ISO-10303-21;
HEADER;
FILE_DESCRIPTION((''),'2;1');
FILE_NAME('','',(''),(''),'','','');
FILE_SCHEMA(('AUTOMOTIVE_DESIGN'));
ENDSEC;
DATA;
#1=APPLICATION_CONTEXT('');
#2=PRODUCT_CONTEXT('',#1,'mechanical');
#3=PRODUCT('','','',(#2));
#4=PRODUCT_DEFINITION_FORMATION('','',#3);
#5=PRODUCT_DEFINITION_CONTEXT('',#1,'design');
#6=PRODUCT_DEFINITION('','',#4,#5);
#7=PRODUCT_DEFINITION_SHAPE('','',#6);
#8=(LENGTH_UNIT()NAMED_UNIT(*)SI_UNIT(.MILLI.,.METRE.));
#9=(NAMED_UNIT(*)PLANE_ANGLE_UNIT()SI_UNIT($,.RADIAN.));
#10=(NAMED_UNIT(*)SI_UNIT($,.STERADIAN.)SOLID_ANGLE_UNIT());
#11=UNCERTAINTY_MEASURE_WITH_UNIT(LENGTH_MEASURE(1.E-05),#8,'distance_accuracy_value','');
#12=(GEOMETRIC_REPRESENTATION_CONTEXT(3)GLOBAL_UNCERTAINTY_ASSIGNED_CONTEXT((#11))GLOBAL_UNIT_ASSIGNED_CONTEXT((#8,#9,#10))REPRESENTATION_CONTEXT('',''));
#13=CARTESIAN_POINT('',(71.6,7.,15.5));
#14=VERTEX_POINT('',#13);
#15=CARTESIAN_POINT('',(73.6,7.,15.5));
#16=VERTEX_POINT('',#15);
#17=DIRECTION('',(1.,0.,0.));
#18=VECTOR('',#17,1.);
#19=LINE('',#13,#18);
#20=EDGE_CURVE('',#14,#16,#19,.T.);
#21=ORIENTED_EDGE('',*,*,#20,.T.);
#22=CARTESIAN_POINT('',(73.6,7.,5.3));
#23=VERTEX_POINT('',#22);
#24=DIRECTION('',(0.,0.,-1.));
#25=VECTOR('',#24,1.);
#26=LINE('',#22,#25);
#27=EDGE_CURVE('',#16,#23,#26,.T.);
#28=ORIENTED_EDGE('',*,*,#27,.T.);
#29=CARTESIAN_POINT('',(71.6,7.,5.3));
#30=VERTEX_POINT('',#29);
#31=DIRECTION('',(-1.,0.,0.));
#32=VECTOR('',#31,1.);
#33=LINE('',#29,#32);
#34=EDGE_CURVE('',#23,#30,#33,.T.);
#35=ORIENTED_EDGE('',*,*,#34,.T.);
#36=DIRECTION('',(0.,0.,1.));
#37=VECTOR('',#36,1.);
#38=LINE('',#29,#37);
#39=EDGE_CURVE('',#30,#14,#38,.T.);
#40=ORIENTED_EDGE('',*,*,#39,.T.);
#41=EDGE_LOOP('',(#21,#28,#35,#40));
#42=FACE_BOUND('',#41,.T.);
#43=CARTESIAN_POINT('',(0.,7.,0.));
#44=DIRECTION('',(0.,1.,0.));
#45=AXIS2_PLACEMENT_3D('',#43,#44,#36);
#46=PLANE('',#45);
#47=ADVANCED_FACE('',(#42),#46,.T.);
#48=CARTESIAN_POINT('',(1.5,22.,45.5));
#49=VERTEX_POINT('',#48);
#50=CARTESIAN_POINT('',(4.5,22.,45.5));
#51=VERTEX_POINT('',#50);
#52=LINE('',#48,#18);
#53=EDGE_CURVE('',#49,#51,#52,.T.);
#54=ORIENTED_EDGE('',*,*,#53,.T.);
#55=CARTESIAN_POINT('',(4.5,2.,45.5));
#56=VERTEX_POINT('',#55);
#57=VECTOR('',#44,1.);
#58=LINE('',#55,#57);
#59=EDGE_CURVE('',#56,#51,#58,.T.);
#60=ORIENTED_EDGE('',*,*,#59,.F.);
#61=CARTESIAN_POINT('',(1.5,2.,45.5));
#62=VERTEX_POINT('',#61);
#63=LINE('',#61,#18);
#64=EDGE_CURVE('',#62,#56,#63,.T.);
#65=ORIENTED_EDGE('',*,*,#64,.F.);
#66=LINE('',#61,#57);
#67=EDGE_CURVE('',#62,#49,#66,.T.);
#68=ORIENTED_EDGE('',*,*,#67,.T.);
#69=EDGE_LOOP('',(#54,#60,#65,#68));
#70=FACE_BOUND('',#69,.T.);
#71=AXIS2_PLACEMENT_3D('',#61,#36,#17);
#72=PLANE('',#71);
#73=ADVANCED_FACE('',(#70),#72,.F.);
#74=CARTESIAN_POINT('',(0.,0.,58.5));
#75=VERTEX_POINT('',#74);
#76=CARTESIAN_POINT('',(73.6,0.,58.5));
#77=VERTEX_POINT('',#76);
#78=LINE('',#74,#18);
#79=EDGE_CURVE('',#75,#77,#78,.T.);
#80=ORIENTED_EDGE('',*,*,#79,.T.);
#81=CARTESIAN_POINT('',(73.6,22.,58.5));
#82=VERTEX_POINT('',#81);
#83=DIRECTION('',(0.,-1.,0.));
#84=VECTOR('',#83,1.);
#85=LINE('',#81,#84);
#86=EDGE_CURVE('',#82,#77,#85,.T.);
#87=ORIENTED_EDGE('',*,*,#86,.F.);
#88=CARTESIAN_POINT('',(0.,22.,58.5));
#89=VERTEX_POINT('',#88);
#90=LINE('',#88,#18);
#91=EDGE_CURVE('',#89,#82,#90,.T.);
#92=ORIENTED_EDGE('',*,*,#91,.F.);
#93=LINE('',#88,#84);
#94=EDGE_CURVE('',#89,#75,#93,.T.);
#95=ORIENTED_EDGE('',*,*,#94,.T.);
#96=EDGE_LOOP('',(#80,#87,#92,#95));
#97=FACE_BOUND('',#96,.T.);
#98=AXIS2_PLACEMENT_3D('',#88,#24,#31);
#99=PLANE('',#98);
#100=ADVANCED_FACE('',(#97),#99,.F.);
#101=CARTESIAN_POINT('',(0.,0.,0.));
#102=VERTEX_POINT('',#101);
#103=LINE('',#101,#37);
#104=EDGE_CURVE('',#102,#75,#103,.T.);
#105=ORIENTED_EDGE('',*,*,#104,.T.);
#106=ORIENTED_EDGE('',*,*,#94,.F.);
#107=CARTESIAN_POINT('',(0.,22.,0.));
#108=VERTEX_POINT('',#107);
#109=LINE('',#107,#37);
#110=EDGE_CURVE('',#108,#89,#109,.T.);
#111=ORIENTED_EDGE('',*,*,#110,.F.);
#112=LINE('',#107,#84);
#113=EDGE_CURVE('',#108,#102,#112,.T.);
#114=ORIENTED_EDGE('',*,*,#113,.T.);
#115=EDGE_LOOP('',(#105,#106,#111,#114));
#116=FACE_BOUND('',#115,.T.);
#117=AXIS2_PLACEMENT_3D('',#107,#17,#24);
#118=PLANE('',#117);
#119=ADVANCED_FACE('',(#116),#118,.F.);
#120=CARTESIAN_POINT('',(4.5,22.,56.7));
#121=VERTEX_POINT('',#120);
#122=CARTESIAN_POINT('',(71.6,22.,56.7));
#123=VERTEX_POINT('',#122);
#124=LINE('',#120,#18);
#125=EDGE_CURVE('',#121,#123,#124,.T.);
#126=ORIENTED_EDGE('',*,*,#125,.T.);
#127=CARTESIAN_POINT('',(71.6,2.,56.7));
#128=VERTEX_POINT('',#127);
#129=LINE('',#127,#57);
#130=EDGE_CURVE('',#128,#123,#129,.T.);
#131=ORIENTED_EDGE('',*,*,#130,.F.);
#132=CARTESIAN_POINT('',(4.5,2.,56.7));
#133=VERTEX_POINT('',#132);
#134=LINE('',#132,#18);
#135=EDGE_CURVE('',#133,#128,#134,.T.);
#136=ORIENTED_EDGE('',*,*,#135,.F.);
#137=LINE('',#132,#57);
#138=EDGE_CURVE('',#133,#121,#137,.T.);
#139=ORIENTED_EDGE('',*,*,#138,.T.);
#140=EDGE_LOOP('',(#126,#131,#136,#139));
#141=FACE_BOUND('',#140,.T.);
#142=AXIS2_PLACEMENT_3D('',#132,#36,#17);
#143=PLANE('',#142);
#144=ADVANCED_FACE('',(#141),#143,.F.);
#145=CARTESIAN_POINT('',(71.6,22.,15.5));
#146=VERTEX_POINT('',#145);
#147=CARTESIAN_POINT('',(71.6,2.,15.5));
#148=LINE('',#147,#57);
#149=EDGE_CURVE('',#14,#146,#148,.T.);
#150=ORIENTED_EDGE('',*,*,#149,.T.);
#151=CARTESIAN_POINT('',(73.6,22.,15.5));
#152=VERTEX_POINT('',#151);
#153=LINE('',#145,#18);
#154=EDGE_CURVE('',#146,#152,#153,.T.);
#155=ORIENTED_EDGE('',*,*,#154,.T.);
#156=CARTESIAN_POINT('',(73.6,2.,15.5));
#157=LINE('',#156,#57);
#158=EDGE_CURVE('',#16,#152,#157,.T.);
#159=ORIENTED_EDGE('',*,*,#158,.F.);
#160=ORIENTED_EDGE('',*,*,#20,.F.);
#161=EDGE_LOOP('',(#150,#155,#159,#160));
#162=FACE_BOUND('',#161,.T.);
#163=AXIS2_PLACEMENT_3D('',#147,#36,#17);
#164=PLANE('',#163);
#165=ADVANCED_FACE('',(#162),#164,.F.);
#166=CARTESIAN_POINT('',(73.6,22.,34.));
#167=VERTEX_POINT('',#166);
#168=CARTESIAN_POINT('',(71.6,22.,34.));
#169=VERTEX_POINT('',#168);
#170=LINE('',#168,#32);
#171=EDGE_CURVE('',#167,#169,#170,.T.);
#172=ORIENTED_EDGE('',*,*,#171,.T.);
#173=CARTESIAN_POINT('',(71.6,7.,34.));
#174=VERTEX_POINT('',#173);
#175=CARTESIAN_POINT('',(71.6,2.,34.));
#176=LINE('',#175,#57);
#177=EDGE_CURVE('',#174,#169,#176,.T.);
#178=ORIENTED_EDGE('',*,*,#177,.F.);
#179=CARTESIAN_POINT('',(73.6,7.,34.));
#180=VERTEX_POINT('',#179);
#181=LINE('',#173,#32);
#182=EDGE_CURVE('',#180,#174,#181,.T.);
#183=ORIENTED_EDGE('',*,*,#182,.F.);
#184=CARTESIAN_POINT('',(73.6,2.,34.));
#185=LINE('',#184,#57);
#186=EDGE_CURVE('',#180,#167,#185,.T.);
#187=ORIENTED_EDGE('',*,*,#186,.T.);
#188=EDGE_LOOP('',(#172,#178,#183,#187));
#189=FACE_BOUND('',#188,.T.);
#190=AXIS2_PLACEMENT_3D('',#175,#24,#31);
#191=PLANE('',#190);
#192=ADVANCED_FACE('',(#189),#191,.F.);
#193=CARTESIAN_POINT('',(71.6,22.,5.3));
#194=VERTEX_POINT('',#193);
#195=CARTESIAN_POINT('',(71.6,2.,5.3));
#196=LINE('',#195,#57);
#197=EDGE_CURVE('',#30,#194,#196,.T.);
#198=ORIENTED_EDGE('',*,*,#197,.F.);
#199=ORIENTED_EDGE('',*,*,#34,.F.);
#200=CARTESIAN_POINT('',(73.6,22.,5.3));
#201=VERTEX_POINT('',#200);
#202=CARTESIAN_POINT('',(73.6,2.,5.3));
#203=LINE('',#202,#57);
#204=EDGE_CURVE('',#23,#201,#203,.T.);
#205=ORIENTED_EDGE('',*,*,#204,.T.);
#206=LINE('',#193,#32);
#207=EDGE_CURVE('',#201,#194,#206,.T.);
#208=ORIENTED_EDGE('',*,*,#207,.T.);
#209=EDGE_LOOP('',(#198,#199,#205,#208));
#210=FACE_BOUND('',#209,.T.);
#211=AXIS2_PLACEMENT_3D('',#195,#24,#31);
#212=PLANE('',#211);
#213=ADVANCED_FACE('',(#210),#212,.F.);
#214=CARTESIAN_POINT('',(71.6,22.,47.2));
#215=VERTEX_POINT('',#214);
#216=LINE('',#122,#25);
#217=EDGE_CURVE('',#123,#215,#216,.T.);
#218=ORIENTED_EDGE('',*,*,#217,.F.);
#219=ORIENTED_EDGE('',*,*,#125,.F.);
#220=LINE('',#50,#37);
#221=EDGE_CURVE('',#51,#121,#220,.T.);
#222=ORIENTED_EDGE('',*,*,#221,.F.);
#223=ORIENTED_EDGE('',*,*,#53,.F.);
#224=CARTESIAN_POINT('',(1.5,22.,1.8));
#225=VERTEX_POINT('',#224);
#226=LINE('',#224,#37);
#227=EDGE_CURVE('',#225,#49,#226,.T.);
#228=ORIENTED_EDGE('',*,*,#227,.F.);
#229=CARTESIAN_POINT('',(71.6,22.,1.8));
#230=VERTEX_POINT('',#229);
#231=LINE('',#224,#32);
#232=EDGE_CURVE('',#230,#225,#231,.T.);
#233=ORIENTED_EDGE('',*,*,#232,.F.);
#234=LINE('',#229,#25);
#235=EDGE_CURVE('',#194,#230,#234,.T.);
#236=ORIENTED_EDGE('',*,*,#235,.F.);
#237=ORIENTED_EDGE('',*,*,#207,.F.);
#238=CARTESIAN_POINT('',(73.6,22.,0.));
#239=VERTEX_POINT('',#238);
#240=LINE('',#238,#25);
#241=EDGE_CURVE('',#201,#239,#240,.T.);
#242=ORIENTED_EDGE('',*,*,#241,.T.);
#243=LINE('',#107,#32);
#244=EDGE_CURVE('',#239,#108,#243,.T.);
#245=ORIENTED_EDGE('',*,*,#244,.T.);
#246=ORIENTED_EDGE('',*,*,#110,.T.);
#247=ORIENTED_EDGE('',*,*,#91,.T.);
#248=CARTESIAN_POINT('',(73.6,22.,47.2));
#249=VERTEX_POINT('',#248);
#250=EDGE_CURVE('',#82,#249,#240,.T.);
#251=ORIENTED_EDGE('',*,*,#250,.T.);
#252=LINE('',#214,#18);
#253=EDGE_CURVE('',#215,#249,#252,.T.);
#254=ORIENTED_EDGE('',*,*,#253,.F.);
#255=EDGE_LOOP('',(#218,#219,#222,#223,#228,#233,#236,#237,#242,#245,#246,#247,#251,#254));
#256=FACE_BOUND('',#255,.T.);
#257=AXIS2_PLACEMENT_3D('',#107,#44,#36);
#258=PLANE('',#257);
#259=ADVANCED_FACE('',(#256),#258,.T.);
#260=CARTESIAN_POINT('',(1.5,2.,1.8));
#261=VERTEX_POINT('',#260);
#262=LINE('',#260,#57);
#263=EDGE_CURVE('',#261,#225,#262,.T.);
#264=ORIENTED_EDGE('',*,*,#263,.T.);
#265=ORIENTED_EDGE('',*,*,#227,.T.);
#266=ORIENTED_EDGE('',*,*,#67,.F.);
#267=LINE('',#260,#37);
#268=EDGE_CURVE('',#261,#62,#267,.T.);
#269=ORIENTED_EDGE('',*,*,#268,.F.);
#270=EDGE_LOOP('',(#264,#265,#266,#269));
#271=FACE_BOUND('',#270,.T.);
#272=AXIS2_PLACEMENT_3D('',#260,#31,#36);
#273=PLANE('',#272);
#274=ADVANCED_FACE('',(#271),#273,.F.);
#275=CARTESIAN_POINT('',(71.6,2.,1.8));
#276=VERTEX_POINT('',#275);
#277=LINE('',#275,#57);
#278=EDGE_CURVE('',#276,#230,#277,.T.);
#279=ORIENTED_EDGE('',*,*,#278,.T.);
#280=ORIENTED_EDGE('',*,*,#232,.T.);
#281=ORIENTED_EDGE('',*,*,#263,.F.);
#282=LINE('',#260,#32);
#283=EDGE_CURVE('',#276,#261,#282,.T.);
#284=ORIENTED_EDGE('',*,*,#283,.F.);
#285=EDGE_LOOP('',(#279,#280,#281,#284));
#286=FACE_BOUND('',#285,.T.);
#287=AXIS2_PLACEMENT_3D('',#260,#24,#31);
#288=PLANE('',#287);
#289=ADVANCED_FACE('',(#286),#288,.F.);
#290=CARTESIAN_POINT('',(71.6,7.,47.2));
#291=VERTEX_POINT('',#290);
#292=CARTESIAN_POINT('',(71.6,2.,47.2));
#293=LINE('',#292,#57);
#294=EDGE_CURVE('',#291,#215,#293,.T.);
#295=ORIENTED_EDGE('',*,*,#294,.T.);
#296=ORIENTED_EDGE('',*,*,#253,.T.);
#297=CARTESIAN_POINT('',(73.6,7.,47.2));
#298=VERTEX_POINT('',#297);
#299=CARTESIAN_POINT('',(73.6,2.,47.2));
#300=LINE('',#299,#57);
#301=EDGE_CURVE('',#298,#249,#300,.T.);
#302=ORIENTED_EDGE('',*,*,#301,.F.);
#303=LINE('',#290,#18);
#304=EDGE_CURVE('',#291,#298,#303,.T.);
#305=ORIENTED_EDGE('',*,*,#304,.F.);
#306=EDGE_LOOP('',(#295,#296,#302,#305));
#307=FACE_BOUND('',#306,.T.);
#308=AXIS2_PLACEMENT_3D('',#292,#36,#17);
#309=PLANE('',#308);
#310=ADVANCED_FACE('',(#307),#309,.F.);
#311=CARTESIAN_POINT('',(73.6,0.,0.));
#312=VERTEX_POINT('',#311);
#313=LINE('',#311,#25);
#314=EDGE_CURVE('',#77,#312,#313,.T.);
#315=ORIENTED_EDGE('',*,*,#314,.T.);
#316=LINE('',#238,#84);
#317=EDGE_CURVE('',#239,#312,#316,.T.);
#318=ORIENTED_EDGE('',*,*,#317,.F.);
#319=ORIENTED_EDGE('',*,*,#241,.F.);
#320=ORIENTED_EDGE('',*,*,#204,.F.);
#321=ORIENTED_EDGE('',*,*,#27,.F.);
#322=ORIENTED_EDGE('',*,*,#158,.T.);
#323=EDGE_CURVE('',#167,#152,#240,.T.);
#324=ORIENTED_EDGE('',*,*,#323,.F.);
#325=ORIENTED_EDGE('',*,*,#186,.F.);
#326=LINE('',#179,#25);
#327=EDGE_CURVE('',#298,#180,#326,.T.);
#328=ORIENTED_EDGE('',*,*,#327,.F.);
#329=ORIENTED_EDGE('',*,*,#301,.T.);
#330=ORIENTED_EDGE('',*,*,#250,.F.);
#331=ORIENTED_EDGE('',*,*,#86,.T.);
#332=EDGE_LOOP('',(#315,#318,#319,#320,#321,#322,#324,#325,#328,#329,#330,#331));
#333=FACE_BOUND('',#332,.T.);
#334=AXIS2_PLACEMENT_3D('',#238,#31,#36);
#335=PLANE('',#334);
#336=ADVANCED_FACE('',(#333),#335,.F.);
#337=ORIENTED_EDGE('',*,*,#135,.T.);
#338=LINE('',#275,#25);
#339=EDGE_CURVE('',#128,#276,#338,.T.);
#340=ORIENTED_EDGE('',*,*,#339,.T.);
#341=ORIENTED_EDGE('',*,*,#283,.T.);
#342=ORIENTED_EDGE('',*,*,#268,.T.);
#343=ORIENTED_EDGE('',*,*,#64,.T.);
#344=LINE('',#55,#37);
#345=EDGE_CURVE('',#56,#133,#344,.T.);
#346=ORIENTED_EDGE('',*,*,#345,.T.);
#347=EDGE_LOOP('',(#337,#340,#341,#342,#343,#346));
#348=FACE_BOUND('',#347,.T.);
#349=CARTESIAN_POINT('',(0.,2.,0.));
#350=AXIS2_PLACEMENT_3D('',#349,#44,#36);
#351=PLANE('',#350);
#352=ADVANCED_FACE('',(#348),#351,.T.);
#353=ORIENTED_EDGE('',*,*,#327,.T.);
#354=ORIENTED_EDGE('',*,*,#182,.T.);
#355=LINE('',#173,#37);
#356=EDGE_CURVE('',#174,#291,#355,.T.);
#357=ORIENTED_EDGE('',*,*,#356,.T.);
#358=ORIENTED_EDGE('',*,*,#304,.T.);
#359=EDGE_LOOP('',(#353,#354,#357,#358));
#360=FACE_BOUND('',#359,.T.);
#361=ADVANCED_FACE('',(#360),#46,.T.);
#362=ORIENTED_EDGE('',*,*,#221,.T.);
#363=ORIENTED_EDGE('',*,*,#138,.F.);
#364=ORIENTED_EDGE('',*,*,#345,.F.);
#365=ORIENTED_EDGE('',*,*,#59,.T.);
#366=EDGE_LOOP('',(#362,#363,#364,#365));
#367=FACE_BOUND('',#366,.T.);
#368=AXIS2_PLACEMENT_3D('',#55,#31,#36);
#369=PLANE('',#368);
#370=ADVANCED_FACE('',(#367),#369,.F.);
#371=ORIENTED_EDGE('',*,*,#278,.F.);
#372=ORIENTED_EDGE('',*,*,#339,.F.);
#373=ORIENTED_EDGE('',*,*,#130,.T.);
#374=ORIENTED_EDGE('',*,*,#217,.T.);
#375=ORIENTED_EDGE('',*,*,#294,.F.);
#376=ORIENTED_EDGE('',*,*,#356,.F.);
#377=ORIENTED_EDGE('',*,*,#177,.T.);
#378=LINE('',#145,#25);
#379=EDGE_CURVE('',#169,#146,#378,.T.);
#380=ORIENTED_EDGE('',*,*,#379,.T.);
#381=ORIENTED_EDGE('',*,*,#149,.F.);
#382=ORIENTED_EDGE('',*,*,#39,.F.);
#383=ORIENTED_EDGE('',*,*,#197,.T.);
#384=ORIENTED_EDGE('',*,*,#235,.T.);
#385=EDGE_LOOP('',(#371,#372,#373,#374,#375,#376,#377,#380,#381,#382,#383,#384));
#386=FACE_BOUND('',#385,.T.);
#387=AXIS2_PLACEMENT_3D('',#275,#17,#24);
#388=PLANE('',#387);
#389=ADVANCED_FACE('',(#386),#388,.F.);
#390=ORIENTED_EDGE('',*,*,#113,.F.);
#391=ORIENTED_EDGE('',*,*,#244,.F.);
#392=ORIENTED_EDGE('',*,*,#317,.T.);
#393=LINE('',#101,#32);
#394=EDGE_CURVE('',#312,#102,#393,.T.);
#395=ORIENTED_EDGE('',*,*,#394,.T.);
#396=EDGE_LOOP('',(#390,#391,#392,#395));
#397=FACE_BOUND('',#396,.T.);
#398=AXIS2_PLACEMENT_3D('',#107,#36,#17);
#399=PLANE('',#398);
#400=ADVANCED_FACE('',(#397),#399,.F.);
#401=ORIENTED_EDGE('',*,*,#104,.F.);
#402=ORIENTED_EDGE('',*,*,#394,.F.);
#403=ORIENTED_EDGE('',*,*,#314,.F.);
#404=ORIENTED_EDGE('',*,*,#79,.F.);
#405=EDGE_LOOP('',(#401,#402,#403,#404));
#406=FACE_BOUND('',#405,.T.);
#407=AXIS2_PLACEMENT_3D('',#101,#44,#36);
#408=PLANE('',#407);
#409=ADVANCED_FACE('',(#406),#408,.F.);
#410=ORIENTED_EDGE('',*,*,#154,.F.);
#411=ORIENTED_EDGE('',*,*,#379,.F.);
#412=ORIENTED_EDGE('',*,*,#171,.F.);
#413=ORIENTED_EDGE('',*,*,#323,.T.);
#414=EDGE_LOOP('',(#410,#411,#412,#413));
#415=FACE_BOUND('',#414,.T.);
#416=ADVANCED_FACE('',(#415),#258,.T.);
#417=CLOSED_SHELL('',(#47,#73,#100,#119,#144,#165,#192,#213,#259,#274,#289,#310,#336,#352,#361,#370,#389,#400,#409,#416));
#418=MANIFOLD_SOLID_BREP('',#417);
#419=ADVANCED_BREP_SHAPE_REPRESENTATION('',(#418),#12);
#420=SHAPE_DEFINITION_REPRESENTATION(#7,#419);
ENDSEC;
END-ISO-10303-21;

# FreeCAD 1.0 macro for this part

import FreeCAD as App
import Part
import Sketcher
from FreeCAD import Vector
Q = App.Units.Quantity

doc = App.newDocument("Part")
body = doc.addObject("PartDesign::Body", "Body")

sketch1 = body.newObject("Sketcher::SketchObject", "Sketch")
sketch1.AttachmentSupport = (doc.getObject("XZ_Plane"), [""])
sketch1.MapMode = "FlatFace"
sketch1.addGeometry([
    Part.LineSegment(Vector(0, 0, 0), Vector(0, 58, 0)),
    Part.LineSegment(Vector(0, 58, 0), Vector(74, 58, 0)),
    Part.LineSegment(Vector(74, 58, 0), Vector(74, 0, 0)),
    Part.LineSegment(Vector(74, 0, 0), Vector(0, 0, 0)),
], False)
sketch1.addConstraint([
    Sketcher.Constraint("Coincident", 0, 2, 1, 1),
    Sketcher.Constraint("Coincident", 1, 2, 2, 1),
    Sketcher.Constraint("Coincident", 2, 2, 3, 1),
    Sketcher.Constraint("Coincident", 3, 2, 0, 1),
    Sketcher.Constraint("Vertical", 0),
    Sketcher.Constraint("Horizontal", 1),
    Sketcher.Constraint("Vertical", 2),
    Sketcher.Constraint("Horizontal", 3),
    Sketcher.Constraint("Coincident", 3, 2, -1, 1),
    Sketcher.Constraint("DistanceX", 1, 1, 1, 2, Q("73.6 mm")),
    Sketcher.Constraint("DistanceY", 0, 1, 0, 2, Q("58.5 mm")),
])
pad1 = body.newObject("PartDesign::Pad", "Pad")
pad1.Profile = sketch1
pad1.Length = 22
pad1.Reversed = True

sketch2 = body.newObject("Sketcher::SketchObject", "Sketch001")
sketch2.AttachmentSupport = (doc.getObject("XZ_Plane"), [""])
sketch2.MapMode = "FlatFace"
sketch2.AttachmentOffset = App.Placement(Vector(0, 0, -22), App.Rotation())
sketch2.addGeometry([
    Part.LineSegment(Vector(71.6, 1.8, 0), Vector(1.5, 1.8, 0)),
    Part.LineSegment(Vector(1.5, 1.8, 0), Vector(1.5, 45.5, 0)),
    Part.LineSegment(Vector(1.5, 45.5, 0), Vector(4.5, 45.5, 0)),
    Part.LineSegment(Vector(4.5, 45.5, 0), Vector(4.5, 56.7, 0)),
    Part.LineSegment(Vector(4.5, 56.7, 0), Vector(71.6, 56.7, 0)),
    Part.LineSegment(Vector(71.6, 56.7, 0), Vector(71.6, 47.2, 0)),
    Part.LineSegment(Vector(71.6, 47.2, 0), Vector(73.6, 47.2, 0)),
    Part.LineSegment(Vector(73.6, 47.2, 0), Vector(73.6, 34, 0)),
    Part.LineSegment(Vector(73.6, 34, 0), Vector(71.6, 34, 0)),
    Part.LineSegment(Vector(71.6, 34, 0), Vector(71.6, 15.5, 0)),
    Part.LineSegment(Vector(71.6, 15.5, 0), Vector(73.6, 15.5, 0)),
    Part.LineSegment(Vector(73.6, 15.5, 0), Vector(73.6, 5.3, 0)),
    Part.LineSegment(Vector(73.6, 5.3, 0), Vector(71.6, 5.3, 0)),
    Part.LineSegment(Vector(71.6, 5.3, 0), Vector(71.6, 1.8, 0)),
], False)
sketch2.addConstraint([
    Sketcher.Constraint("Coincident", 0, 2, 1, 1),
    Sketcher.Constraint("Coincident", 1, 2, 2, 1),
    Sketcher.Constraint("Coincident", 2, 2, 3, 1),
    Sketcher.Constraint("Coincident", 3, 2, 4, 1),
    Sketcher.Constraint("Coincident", 4, 2, 5, 1),
    Sketcher.Constraint("Coincident", 5, 2, 6, 1),
    Sketcher.Constraint("Coincident", 6, 2, 7, 1),
    Sketcher.Constraint("Coincident", 7, 2, 8, 1),
    Sketcher.Constraint("Coincident", 8, 2, 9, 1),
    Sketcher.Constraint("Coincident", 9, 2, 10, 1),
    Sketcher.Constraint("Coincident", 10, 2, 11, 1),
    Sketcher.Constraint("Coincident", 11, 2, 12, 1),
    Sketcher.Constraint("Coincident", 12, 2, 13, 1),
    Sketcher.Constraint("Coincident", 13, 2, 0, 1),
    Sketcher.Constraint("Horizontal", 0),
    Sketcher.Constraint("Vertical", 1),
    Sketcher.Constraint("Horizontal", 2),
    Sketcher.Constraint("Vertical", 3),
    Sketcher.Constraint("Horizontal", 4),
    Sketcher.Constraint("Vertical", 5),
    Sketcher.Constraint("Horizontal", 6),
    Sketcher.Constraint("Vertical", 7),
    Sketcher.Constraint("Horizontal", 8),
    Sketcher.Constraint("Vertical", 9),
    Sketcher.Constraint("Horizontal", 10),
    Sketcher.Constraint("Vertical", 11),
    Sketcher.Constraint("Horizontal", 12),
    Sketcher.Constraint("Vertical", 13),
    Sketcher.Constraint("Vertical", 5, 2, 8, 2),
    Sketcher.Constraint("Vertical", 7, 2, 10, 2),
    Sketcher.Constraint("Vertical", 9, 2, 12, 2),
    Sketcher.Constraint("DistanceX", 2, 1, 2, 2, Q("3 mm")),
    Sketcher.Constraint("DistanceX", 6, 1, 6, 2, Q("2 mm")),
    Sketcher.Constraint("DistanceX", 0, 2, 0, 1, Q("70.1 mm")),
    Sketcher.Constraint("DistanceY", 1, 1, 1, 2, Q("43.7 mm")),
    Sketcher.Constraint("DistanceY", 3, 1, 3, 2, Q("11.2 mm")),
    Sketcher.Constraint("DistanceY", 5, 2, 5, 1, Q("9.5 mm")),
    Sketcher.Constraint("DistanceY", 7, 2, 7, 1, Q("13.2 mm")),
    Sketcher.Constraint("DistanceY", 9, 2, 9, 1, Q("18.5 mm")),
    Sketcher.Constraint("DistanceY", 11, 2, 11, 1, Q("10.2 mm")),
    Sketcher.Constraint("DistanceY", -1, 1, 7, 2, Q("34 mm")),
    Sketcher.Constraint("DistanceX", -1, 1, 0, 2, Q("1.5 mm")),
])
pocket1 = body.newObject("PartDesign::Pocket", "Pocket")
pocket1.Profile = sketch2
pocket1.Length = 20
pocket1.Reversed = True

sketch3 = body.newObject("Sketcher::SketchObject", "Sketch002")
sketch3.AttachmentSupport = (doc.getObject("XZ_Plane"), [""])
sketch3.MapMode = "FlatFace"
sketch3.AttachmentOffset = App.Placement(Vector(0, 0, -2), App.Rotation())
sketch3.addGeometry([
    Part.LineSegment(Vector(71.6, 5.3, 0), Vector(71.6, 15.5, 0)),
    Part.LineSegment(Vector(71.6, 15.5, 0), Vector(73.6, 15.5, 0)),
    Part.LineSegment(Vector(73.6, 15.5, 0), Vector(73.6, 5.3, 0)),
    Part.LineSegment(Vector(73.6, 5.3, 0), Vector(71.6, 5.3, 0)),
    Part.LineSegment(Vector(71.6, 34, 0), Vector(71.6, 47.2, 0)),
    Part.LineSegment(Vector(71.6, 47.2, 0), Vector(73.6, 47.2, 0)),
    Part.LineSegment(Vector(73.6, 47.2, 0), Vector(73.6, 34, 0)),
    Part.LineSegment(Vector(73.6, 34, 0), Vector(71.6, 34, 0)),
], False)
sketch3.addConstraint([
    Sketcher.Constraint("Coincident", 0, 2, 1, 1),
    Sketcher.Constraint("Coincident", 1, 2, 2, 1),
    Sketcher.Constraint("Coincident", 2, 2, 3, 1),
    Sketcher.Constraint("Coincident", 3, 2, 0, 1),
    Sketcher.Constraint("Coincident", 4, 2, 5, 1),
    Sketcher.Constraint("Coincident", 5, 2, 6, 1),
    Sketcher.Constraint("Coincident", 6, 2, 7, 1),
    Sketcher.Constraint("Coincident", 7, 2, 4, 1),
    Sketcher.Constraint("Vertical", 0),
    Sketcher.Constraint("Horizontal", 1),
    Sketcher.Constraint("Vertical", 2),
    Sketcher.Constraint("Horizontal", 3),
    Sketcher.Constraint("Vertical", 4),
    Sketcher.Constraint("Horizontal", 5),
    Sketcher.Constraint("Vertical", 6),
    Sketcher.Constraint("Horizontal", 7),
    Sketcher.Constraint("Vertical", 3, 2, 4, 2),
    Sketcher.Constraint("Vertical", 2, 2, 5, 2),
    Sketcher.Constraint("DistanceX", 1, 1, 1, 2, Q("2 mm")),
    Sketcher.Constraint("DistanceY", 0, 1, 0, 2, Q("10.2 mm")),
    Sketcher.Constraint("DistanceY", 4, 1, 4, 2, Q("13.2 mm")),
    Sketcher.Constraint("DistanceY", -1, 1, 6, 2, Q("34 mm")),
    Sketcher.Constraint("DistanceX", -1, 1, 0, 2, Q("71.6 mm")),
    Sketcher.Constraint("DistanceY", -1, 1, 0, 2, Q("15.5 mm")),
])
pad2 = body.newObject("PartDesign::Pad", "Pad001")
pad2.Profile = sketch3
pad2.Length = 5
pad2.Reversed = True

doc.recompute()
